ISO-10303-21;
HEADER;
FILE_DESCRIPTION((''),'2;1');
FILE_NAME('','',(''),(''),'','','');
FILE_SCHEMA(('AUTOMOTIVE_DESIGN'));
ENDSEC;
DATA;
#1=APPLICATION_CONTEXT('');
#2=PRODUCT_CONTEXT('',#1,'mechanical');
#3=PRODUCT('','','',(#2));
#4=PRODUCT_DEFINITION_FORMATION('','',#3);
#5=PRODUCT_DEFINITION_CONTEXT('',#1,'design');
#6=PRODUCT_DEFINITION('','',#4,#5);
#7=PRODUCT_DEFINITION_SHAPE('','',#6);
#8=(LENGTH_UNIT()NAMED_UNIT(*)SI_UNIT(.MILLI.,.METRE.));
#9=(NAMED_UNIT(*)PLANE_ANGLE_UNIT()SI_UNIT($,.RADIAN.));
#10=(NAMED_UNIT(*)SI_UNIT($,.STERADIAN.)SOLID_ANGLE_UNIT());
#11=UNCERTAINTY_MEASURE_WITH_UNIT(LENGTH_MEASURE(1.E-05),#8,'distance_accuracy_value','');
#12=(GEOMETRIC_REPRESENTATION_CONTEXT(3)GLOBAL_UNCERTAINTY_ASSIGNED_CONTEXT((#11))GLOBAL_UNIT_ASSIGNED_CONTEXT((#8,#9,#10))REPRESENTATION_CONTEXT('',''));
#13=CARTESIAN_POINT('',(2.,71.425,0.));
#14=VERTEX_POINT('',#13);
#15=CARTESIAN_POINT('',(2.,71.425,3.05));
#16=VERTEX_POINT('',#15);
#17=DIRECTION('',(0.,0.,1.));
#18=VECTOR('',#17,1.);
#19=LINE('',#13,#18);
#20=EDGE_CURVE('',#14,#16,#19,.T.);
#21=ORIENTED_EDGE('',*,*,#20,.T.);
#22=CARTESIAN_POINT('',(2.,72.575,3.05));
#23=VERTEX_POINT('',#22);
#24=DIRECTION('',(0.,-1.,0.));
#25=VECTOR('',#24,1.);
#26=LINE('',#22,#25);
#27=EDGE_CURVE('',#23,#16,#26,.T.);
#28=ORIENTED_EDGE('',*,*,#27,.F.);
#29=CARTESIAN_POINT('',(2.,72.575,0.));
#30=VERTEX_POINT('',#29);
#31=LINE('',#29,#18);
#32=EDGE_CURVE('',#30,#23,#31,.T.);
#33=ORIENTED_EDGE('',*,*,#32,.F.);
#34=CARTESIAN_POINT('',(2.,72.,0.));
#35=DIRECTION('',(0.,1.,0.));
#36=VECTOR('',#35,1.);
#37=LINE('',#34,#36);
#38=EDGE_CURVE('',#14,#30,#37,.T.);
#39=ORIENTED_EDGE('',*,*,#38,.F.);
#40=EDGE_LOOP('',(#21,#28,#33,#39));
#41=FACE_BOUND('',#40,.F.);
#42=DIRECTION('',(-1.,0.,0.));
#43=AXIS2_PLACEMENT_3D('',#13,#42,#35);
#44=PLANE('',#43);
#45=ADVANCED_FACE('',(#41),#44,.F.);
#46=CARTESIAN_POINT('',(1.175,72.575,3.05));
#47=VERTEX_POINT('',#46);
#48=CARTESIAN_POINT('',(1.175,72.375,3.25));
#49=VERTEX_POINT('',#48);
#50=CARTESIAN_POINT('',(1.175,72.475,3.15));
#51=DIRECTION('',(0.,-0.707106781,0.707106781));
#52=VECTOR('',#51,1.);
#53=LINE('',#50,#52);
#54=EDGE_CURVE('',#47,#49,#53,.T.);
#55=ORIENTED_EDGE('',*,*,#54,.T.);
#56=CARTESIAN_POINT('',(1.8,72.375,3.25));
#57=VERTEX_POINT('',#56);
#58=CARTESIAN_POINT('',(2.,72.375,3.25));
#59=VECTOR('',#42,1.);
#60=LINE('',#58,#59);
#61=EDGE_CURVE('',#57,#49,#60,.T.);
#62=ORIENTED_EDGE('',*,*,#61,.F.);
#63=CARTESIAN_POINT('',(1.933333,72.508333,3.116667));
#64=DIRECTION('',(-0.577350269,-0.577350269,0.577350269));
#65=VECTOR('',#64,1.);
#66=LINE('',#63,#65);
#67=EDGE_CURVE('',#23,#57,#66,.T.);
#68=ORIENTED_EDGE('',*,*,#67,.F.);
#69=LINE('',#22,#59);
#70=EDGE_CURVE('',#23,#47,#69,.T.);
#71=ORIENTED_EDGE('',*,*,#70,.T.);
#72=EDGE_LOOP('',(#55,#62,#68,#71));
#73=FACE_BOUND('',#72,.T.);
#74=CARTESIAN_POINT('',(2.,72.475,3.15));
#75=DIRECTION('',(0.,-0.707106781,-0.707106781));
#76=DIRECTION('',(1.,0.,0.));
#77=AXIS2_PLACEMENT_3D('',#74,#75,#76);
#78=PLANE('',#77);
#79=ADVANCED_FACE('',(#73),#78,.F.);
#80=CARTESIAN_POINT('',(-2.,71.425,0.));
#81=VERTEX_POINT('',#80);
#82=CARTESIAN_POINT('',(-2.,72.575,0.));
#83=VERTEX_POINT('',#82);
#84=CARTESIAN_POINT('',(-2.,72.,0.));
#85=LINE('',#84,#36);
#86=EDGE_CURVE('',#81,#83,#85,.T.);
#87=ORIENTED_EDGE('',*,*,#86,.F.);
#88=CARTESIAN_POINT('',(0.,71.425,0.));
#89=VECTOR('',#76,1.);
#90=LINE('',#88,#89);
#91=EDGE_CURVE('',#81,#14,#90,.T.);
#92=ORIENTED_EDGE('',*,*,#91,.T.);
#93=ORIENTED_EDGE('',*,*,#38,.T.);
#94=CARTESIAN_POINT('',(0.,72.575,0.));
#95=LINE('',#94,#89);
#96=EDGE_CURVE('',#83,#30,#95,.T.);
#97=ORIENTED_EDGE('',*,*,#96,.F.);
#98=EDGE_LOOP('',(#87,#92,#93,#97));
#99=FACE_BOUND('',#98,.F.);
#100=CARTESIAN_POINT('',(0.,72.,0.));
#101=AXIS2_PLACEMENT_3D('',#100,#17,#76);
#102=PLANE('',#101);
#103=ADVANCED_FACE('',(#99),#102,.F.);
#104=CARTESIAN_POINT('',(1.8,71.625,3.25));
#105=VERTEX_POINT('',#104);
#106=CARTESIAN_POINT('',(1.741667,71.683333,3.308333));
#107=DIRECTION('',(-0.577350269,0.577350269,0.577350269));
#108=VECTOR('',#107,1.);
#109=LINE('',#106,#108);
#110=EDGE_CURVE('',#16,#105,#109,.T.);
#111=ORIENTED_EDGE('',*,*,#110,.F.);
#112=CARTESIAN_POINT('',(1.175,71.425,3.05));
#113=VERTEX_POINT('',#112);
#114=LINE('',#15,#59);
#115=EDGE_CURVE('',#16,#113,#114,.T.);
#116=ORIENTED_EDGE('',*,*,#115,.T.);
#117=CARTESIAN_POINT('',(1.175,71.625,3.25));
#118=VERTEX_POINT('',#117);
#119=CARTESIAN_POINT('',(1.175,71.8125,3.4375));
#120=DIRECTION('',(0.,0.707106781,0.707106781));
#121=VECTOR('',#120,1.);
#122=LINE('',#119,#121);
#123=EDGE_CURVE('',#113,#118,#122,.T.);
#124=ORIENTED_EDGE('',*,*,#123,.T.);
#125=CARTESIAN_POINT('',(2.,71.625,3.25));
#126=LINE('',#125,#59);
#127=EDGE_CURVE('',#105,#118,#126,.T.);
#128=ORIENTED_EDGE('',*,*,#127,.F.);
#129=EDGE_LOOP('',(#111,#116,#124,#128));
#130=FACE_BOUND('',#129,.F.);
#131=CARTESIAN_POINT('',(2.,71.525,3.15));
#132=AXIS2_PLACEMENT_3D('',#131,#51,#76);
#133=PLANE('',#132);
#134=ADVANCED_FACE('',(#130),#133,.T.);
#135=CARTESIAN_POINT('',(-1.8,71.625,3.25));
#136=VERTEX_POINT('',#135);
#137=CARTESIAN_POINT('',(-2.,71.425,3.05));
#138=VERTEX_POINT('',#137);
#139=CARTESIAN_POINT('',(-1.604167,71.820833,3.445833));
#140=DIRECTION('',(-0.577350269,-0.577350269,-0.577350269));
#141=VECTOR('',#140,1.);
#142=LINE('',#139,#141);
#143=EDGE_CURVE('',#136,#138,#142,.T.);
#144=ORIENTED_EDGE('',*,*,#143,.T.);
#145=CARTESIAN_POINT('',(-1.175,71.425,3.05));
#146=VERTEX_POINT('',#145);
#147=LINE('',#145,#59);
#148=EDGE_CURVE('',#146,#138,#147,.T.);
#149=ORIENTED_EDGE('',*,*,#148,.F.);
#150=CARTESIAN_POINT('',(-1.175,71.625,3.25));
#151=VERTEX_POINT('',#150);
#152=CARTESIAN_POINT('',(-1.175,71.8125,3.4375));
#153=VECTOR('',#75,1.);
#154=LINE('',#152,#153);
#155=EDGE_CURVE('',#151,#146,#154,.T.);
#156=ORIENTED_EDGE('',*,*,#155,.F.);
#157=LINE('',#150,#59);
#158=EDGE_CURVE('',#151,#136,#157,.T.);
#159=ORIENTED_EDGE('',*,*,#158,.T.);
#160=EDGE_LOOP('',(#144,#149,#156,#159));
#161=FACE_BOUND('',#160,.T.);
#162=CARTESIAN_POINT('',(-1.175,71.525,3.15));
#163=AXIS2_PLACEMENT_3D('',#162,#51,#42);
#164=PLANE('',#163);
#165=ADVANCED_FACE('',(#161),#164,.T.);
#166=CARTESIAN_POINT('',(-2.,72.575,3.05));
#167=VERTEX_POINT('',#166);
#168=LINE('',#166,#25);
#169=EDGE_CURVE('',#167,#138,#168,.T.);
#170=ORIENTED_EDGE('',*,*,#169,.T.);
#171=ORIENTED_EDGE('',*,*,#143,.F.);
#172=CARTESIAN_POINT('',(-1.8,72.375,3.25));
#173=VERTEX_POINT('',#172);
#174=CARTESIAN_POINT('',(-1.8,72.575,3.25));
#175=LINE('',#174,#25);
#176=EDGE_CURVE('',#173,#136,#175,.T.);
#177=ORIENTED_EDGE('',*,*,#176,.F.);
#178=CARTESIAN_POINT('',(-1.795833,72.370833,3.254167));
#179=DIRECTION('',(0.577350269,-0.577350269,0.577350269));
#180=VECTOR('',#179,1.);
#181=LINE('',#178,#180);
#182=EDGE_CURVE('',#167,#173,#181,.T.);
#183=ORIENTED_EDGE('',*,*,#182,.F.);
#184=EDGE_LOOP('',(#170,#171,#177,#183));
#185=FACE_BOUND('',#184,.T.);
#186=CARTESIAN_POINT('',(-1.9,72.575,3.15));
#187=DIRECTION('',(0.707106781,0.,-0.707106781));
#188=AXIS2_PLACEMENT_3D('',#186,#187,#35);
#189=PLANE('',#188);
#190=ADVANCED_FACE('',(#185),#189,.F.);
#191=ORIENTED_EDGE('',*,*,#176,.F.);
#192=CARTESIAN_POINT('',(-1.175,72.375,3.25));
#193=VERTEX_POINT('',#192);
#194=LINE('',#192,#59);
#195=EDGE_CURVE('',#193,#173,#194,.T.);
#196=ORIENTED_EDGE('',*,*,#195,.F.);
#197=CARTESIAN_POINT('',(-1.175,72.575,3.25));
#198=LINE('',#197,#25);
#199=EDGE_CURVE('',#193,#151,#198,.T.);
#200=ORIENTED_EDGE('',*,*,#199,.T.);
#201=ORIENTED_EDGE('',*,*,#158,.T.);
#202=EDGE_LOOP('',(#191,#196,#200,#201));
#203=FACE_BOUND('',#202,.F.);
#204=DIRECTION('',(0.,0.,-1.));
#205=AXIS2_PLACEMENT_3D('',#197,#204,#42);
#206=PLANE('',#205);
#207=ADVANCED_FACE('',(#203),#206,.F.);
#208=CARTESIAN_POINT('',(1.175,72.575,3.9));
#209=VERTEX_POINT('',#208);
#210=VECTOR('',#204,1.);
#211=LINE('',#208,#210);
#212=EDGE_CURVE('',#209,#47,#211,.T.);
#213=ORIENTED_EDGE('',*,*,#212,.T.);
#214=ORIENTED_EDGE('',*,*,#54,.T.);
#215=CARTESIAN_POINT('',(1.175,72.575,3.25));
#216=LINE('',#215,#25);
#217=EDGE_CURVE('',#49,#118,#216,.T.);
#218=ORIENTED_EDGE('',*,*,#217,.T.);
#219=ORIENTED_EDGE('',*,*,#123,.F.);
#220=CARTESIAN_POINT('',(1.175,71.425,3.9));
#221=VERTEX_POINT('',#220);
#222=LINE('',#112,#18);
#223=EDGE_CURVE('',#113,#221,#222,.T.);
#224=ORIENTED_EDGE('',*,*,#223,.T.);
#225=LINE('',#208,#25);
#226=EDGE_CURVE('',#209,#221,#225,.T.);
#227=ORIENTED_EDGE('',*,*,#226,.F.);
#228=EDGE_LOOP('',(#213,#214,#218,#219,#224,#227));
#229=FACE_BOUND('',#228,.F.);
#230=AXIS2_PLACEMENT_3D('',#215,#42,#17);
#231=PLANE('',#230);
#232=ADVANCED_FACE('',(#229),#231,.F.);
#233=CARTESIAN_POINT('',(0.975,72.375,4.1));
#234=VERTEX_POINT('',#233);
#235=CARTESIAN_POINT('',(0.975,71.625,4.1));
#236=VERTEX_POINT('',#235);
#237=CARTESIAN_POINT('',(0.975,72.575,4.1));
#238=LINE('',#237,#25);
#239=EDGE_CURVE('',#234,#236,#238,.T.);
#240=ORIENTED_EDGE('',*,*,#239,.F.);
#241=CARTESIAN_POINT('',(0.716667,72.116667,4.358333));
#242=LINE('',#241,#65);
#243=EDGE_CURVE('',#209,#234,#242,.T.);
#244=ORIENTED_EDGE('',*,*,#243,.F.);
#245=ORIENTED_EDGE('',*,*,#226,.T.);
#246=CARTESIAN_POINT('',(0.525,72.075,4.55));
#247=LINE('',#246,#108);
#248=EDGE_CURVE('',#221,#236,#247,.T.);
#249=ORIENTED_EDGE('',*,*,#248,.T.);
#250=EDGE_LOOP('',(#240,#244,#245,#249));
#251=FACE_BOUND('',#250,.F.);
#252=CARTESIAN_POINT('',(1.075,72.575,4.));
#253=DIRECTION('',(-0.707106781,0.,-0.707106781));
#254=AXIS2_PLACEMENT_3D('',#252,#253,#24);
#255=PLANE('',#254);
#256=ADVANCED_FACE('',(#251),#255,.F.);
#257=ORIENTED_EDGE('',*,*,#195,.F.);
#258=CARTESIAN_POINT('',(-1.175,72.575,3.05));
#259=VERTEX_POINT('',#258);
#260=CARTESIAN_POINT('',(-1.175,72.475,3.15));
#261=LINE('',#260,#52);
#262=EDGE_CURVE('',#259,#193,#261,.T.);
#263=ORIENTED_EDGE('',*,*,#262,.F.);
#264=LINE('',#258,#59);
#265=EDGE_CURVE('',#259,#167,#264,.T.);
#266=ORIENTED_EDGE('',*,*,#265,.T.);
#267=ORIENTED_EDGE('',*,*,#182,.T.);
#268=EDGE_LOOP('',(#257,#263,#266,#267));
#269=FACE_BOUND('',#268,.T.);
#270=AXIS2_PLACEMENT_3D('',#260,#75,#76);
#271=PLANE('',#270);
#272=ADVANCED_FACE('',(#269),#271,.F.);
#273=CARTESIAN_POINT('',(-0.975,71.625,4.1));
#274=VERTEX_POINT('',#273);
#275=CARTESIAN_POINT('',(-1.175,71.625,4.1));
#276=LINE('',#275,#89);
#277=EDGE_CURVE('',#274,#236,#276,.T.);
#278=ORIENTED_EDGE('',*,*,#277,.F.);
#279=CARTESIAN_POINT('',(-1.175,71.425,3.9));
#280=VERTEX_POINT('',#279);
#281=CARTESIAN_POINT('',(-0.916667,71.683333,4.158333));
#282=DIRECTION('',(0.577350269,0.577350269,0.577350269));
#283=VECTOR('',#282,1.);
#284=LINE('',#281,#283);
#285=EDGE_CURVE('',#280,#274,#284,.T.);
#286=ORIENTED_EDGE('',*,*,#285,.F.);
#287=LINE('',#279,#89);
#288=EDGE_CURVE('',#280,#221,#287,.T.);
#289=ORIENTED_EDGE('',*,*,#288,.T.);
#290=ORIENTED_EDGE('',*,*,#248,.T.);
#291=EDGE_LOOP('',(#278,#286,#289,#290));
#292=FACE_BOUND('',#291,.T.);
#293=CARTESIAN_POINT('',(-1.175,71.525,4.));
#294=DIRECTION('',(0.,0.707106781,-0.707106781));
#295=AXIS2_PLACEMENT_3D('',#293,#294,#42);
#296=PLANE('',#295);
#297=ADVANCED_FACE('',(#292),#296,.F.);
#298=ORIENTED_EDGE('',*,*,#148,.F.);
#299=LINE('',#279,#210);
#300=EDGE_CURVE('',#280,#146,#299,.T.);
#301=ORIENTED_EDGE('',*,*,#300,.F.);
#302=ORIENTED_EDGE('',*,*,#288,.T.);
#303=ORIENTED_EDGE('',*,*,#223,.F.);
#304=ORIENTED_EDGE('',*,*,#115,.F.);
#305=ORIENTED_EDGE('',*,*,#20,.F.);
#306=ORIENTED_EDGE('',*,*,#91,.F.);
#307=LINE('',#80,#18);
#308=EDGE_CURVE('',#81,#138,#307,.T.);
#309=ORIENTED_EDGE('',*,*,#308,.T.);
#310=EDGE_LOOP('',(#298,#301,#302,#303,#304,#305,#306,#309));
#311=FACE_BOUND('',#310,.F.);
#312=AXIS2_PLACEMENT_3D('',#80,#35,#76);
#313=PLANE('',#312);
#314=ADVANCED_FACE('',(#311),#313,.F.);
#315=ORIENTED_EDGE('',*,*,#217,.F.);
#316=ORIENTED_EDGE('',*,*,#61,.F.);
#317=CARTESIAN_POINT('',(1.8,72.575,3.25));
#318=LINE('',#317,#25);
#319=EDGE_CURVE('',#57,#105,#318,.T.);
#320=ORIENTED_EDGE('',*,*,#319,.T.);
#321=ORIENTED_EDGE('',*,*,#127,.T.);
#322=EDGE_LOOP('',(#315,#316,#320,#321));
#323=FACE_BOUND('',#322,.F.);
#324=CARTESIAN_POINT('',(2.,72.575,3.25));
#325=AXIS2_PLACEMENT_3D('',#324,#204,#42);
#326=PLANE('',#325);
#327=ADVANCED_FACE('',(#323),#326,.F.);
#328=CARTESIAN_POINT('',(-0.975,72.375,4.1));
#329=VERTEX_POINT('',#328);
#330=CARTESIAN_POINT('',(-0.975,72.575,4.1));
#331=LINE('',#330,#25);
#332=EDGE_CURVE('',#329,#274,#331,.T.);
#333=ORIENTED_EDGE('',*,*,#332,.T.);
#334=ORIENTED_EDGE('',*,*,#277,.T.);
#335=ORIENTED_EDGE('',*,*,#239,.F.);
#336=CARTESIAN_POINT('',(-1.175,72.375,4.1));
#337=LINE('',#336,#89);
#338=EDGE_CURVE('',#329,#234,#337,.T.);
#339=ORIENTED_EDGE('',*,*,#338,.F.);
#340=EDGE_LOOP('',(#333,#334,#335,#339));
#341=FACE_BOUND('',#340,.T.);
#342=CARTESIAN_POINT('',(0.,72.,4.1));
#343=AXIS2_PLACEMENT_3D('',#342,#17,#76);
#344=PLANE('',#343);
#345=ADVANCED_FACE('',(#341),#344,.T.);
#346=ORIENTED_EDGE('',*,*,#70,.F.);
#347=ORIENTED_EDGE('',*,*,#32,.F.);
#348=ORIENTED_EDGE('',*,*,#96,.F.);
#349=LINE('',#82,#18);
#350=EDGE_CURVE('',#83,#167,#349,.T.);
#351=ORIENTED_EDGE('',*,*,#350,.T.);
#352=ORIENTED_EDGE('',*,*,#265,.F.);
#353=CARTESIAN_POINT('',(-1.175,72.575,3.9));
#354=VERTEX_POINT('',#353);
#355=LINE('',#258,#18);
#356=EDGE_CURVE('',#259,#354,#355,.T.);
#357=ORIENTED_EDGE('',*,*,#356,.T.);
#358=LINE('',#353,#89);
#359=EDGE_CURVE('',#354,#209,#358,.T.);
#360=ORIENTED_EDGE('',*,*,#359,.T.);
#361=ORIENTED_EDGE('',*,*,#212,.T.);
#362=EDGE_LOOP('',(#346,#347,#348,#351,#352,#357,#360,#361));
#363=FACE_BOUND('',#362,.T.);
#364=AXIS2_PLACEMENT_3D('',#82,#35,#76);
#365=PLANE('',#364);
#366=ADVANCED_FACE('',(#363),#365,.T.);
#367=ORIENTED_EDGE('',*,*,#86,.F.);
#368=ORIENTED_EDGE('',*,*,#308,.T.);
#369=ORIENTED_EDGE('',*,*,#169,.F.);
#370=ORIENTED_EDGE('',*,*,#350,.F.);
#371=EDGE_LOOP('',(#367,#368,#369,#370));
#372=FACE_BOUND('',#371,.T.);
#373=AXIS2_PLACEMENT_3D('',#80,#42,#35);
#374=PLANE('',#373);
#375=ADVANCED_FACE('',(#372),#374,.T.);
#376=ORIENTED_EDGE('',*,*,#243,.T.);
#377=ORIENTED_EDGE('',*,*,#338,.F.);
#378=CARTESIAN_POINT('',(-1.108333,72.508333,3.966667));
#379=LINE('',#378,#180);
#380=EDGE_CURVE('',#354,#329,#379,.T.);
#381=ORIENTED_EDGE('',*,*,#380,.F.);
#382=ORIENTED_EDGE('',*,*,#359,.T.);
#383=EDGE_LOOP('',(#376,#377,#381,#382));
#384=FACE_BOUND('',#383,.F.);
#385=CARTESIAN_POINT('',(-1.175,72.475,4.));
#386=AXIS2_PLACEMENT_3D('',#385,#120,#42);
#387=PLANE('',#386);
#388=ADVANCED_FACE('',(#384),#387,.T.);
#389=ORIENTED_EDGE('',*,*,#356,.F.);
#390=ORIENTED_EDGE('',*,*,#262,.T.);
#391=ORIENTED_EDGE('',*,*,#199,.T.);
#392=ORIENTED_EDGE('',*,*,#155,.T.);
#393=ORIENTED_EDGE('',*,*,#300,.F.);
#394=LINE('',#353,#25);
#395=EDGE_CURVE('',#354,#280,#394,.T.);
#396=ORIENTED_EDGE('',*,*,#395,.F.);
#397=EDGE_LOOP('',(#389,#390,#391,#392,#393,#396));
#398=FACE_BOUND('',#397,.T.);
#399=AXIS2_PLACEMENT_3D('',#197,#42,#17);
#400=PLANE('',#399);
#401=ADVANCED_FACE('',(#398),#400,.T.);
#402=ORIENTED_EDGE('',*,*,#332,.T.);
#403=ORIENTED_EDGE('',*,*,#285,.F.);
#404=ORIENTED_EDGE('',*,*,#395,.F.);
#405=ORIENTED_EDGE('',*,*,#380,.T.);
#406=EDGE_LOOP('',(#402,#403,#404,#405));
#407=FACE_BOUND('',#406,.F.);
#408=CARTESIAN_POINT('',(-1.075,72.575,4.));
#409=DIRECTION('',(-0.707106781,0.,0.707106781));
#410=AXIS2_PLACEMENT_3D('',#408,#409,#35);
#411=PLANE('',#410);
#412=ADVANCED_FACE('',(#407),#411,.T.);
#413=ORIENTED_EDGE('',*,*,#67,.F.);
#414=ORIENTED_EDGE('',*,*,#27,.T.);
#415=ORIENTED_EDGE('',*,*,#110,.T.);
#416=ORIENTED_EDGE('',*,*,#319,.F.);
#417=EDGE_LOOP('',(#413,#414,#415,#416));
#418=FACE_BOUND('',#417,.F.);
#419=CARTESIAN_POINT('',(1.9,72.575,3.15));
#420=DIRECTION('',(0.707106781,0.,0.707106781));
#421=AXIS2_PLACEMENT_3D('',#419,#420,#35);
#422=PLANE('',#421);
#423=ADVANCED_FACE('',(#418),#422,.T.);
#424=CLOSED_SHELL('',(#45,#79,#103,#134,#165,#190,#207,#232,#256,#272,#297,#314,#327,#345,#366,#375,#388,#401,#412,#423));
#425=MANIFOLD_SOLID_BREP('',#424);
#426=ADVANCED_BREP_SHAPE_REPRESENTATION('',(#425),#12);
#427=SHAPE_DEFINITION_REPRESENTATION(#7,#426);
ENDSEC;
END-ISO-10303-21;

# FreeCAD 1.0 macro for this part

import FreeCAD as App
import Part
import Sketcher

V = App.Vector


def edges_at(feature, points):
    """Names of the edges that pass closest to the given points."""
    edges = feature.Shape.Edges
    near = lambda p: min(range(len(edges)), key=lambda i: edges[i].distToShape(Part.Vertex(*p))[0])
    return sorted({f"Edge{near(p) + 1}" for p in points})


def add_polygon(sketch, points):
    """Adds a closed chain of lines whose ends are joined by coincident constraints."""
    first, n = sketch.GeometryCount, len(points)
    for a, b in zip(points, points[1:] + points[:1]):
        sketch.addGeometry(Part.LineSegment(App.Vector(*a, 0), App.Vector(*b, 0)), False)
    for i in range(n):
        sketch.addConstraint(Sketcher.Constraint("Coincident", first + i, 2, first + (i + 1) % n, 1))

doc = App.newDocument("Part")
body = doc.addObject("PartDesign::Body", "Body")

# Sketch on XY plane
sketch1 = doc.addObject("Sketcher::SketchObject", "Sketch")
body.addObject(sketch1)
sketch1.AttachmentSupport = (doc.XY_Plane, [""])
sketch1.MapMode = "FlatFace"
add_polygon(sketch1, [(-2, 0.575), (-2, -0.575), (2, -0.575), (2, 0.575)])  # lines 0-3
sketch1.addConstraint([
    Sketcher.Constraint("Vertical", 0),
    Sketcher.Constraint("Horizontal", 1),
    Sketcher.Constraint("Vertical", 2),
    Sketcher.Constraint("Horizontal", 3),
    Sketcher.Constraint("Symmetric", 0, 2, 2, 2, -1, 1),
    Sketcher.Constraint("DistanceX", 1, 1, 1, 2, 4.0),
    Sketcher.Constraint("DistanceY", 0, 2, 0, 1, 1.15),
])
pad1 = doc.addObject("PartDesign::Pad", "Pad")
body.addObject(pad1)
pad1.Profile = sketch1
pad1.Length = 4.1

# Sketch on XZ plane
sketch2 = doc.addObject("Sketcher::SketchObject", "Sketch001")
body.addObject(sketch2)
sketch2.AttachmentSupport = (doc.XZ_Plane, [""])
sketch2.MapMode = "FlatFace"
sketch2.AttachmentOffset = App.Placement(V(0, 0, -0.575), App.Rotation())
add_polygon(sketch2, [(2, 4.1), (2, 3.25), (1.175, 3.25), (1.175, 4.1)])  # lines 0-3
add_polygon(sketch2, [(-1.175, 4.1), (-1.175, 3.25), (-2, 3.25), (-2, 4.1)])  # lines 4-7
sketch2.addConstraint([
    Sketcher.Constraint("Vertical", 0),
    Sketcher.Constraint("Horizontal", 1),
    Sketcher.Constraint("Vertical", 2),
    Sketcher.Constraint("Horizontal", 3),
    Sketcher.Constraint("Vertical", 4),
    Sketcher.Constraint("Horizontal", 5),
    Sketcher.Constraint("Vertical", 6),
    Sketcher.Constraint("Horizontal", 7),
    Sketcher.Constraint("Symmetric", 1, 2, 4, 2, -2),
    Sketcher.Constraint("Symmetric", 3, 2, 6, 2, -2),
    Sketcher.Constraint("DistanceX", -1, 1, 0, 2, 2.0),
    Sketcher.Constraint("DistanceY", 0, 2, 0, 1, 0.85),
    Sketcher.Constraint("DistanceY", -1, 1, 2, 2, 4.1),
    Sketcher.Constraint("DistanceX", 1, 2, 1, 1, 0.825),
])
pocket1 = doc.addObject("PartDesign::Pocket", "Pocket")
body.addObject(pocket1)
pocket1.Profile = sketch2
pocket1.Length = 5
pocket1.Reversed = True
doc.recompute()

chamfer = doc.addObject("PartDesign::Chamfer", "Chamfer")
body.addObject(chamfer)
chamfer.Base = (pocket1, edges_at(pocket1, [
    (0, 0.575, 4.1),
    (0, -0.575, 4.1),
    (1.587, 0.575, 3.25),
    (-1.587, 0.575, 3.25),
    (-1.587, -0.575, 3.25),
    (1.587, -0.575, 3.25),
    (2, 0, 3.25),
    (-2, 0, 3.25),
    (1.175, 0, 4.1),
    (-1.175, 0, 4.1),
]))
chamfer.Size = 0.2
body2 = doc.addObject("PartDesign::Body", "Body001")
doc.recompute()

body.Placement = App.Placement(V(0, 72, 0), App.Rotation(V(0, 0, 1), 0))
boolean = doc.addObject("PartDesign::Boolean", "Boolean")
body2.addObject(boolean)
boolean.Type = "Fuse"
boolean.addObjects([body])

doc.recompute()
